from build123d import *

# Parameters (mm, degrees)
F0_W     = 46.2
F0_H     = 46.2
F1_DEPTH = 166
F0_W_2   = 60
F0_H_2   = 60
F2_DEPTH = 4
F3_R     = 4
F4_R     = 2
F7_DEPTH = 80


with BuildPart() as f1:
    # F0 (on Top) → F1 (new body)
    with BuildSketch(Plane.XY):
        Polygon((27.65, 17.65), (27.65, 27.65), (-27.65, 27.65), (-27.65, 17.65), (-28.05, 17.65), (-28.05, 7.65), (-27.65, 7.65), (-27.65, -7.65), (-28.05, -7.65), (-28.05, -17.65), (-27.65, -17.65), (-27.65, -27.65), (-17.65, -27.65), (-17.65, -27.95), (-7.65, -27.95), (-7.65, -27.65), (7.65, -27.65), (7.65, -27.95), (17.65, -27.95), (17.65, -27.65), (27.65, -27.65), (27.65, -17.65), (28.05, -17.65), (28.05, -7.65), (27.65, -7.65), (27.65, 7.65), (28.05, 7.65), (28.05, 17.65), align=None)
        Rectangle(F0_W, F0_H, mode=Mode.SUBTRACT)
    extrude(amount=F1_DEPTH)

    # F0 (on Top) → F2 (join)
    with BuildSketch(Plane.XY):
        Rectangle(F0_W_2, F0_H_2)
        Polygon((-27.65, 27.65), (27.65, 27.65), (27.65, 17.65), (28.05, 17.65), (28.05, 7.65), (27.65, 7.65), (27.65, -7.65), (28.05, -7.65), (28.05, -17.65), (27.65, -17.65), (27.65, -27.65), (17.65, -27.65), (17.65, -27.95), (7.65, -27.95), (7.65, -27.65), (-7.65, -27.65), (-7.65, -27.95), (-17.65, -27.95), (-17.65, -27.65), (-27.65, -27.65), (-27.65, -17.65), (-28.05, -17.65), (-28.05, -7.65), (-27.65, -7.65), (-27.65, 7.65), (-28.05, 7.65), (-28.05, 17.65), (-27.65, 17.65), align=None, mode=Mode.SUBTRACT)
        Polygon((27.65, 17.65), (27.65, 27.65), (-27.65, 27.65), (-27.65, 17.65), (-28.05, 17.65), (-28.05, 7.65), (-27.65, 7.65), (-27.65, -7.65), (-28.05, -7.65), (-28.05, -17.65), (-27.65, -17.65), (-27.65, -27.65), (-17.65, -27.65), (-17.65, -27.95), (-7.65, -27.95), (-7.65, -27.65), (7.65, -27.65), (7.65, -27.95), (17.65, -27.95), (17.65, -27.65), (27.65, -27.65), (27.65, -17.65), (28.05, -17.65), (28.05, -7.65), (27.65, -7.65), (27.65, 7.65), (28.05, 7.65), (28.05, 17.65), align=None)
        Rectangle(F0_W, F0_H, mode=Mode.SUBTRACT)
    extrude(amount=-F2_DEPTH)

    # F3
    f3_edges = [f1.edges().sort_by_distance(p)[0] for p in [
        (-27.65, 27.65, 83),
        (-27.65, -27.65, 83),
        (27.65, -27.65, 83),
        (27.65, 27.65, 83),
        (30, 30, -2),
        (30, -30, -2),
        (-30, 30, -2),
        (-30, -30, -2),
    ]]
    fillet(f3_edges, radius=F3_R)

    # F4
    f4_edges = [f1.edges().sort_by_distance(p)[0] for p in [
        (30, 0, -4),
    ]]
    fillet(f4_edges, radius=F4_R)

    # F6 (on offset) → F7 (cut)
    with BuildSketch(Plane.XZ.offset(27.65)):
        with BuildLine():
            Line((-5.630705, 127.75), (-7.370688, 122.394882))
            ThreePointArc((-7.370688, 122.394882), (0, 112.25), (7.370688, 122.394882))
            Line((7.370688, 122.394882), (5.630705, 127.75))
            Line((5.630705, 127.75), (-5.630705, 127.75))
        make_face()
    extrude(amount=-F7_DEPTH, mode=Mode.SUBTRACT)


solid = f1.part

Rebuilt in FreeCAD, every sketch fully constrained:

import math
import FreeCAD as App
import Part
import Sketcher
from FreeCAD import Vector
Q = App.Units.Quantity


def edges_at(feature, points):
    """Names of the edges that pass closest to the given points."""
    edges = feature.Shape.Edges
    near = lambda p: min(range(len(edges)), key=lambda i: edges[i].distToShape(Part.Vertex(*p))[0])
    return sorted({f"Edge{near(p) + 1}" for p in points})

doc = App.newDocument("Part")
body = doc.addObject("PartDesign::Body", "Body")

sketch1 = doc.addObject("Sketcher::SketchObject", "Sketch")
body.addObject(sketch1)
sketch1.AttachmentSupport = (doc.XY_Plane, [""])
sketch1.MapMode = "FlatFace"
sketch1.addGeometry([
    Part.LineSegment(Vector(27.65, 17.65, 0), Vector(27.65, 27.65, 0)),
    Part.LineSegment(Vector(27.65, 27.65, 0), Vector(-27.65, 27.65, 0)),
    Part.LineSegment(Vector(-27.65, 27.65, 0), Vector(-27.65, 17.65, 0)),
    Part.LineSegment(Vector(-27.65, 17.65, 0), Vector(-28.05, 17.65, 0)),
    Part.LineSegment(Vector(-28.05, 17.65, 0), Vector(-28.05, 7.65, 0)),
    Part.LineSegment(Vector(-28.05, 7.65, 0), Vector(-27.65, 7.65, 0)),
    Part.LineSegment(Vector(-27.65, 7.65, 0), Vector(-27.65, -7.65, 0)),
    Part.LineSegment(Vector(-27.65, -7.65, 0), Vector(-28.05, -7.65, 0)),
    Part.LineSegment(Vector(-28.05, -7.65, 0), Vector(-28.05, -17.65, 0)),
    Part.LineSegment(Vector(-28.05, -17.65, 0), Vector(-27.65, -17.65, 0)),
    Part.LineSegment(Vector(-27.65, -17.65, 0), Vector(-27.65, -27.65, 0)),
    Part.LineSegment(Vector(-27.65, -27.65, 0), Vector(-17.65, -27.65, 0)),
    Part.LineSegment(Vector(-17.65, -27.65, 0), Vector(-17.65, -27.95, 0)),
    Part.LineSegment(Vector(-17.65, -27.95, 0), Vector(-7.65, -27.95, 0)),
    Part.LineSegment(Vector(-7.65, -27.95, 0), Vector(-7.65, -27.65, 0)),
    Part.LineSegment(Vector(-7.65, -27.65, 0), Vector(7.65, -27.65, 0)),
    Part.LineSegment(Vector(7.65, -27.65, 0), Vector(7.65, -27.95, 0)),
    Part.LineSegment(Vector(7.65, -27.95, 0), Vector(17.65, -27.95, 0)),
    Part.LineSegment(Vector(17.65, -27.95, 0), Vector(17.65, -27.65, 0)),
    Part.LineSegment(Vector(17.65, -27.65, 0), Vector(27.65, -27.65, 0)),
    Part.LineSegment(Vector(27.65, -27.65, 0), Vector(27.65, -17.65, 0)),
    Part.LineSegment(Vector(27.65, -17.65, 0), Vector(28.05, -17.65, 0)),
    Part.LineSegment(Vector(28.05, -17.65, 0), Vector(28.05, -7.65, 0)),
    Part.LineSegment(Vector(28.05, -7.65, 0), Vector(27.65, -7.65, 0)),
    Part.LineSegment(Vector(27.65, -7.65, 0), Vector(27.65, 7.65, 0)),
    Part.LineSegment(Vector(27.65, 7.65, 0), Vector(28.05, 7.65, 0)),
    Part.LineSegment(Vector(28.05, 7.65, 0), Vector(28.05, 17.65, 0)),
    Part.LineSegment(Vector(28.05, 17.65, 0), Vector(27.65, 17.65, 0)),
    Part.LineSegment(Vector(23.1, -23.1, 0), Vector(-23.1, -23.1, 0)),
    Part.LineSegment(Vector(-23.1, -23.1, 0), Vector(-23.1, 23.1, 0)),
    Part.LineSegment(Vector(-23.1, 23.1, 0), Vector(23.1, 23.1, 0)),
    Part.LineSegment(Vector(23.1, 23.1, 0), Vector(23.1, -23.1, 0)),
], False)
sketch1.addConstraint([
    Sketcher.Constraint("Coincident", 0, 2, 1, 1),
    Sketcher.Constraint("Coincident", 1, 2, 2, 1),
    Sketcher.Constraint("Coincident", 2, 2, 3, 1),
    Sketcher.Constraint("Coincident", 3, 2, 4, 1),
    Sketcher.Constraint("Coincident", 4, 2, 5, 1),
    Sketcher.Constraint("Coincident", 5, 2, 6, 1),
    Sketcher.Constraint("Coincident", 6, 2, 7, 1),
    Sketcher.Constraint("Coincident", 7, 2, 8, 1),
    Sketcher.Constraint("Coincident", 8, 2, 9, 1),
    Sketcher.Constraint("Coincident", 9, 2, 10, 1),
    Sketcher.Constraint("Coincident", 10, 2, 11, 1),
    Sketcher.Constraint("Coincident", 11, 2, 12, 1),
    Sketcher.Constraint("Coincident", 12, 2, 13, 1),
    Sketcher.Constraint("Coincident", 13, 2, 14, 1),
    Sketcher.Constraint("Coincident", 14, 2, 15, 1),
    Sketcher.Constraint("Coincident", 15, 2, 16, 1),
    Sketcher.Constraint("Coincident", 16, 2, 17, 1),
    Sketcher.Constraint("Coincident", 17, 2, 18, 1),
    Sketcher.Constraint("Coincident", 18, 2, 19, 1),
    Sketcher.Constraint("Coincident", 19, 2, 20, 1),
    Sketcher.Constraint("Coincident", 20, 2, 21, 1),
    Sketcher.Constraint("Coincident", 21, 2, 22, 1),
    Sketcher.Constraint("Coincident", 22, 2, 23, 1),
    Sketcher.Constraint("Coincident", 23, 2, 24, 1),
    Sketcher.Constraint("Coincident", 24, 2, 25, 1),
    Sketcher.Constraint("Coincident", 25, 2, 26, 1),
    Sketcher.Constraint("Coincident", 26, 2, 27, 1),
    Sketcher.Constraint("Coincident", 27, 2, 0, 1),
    Sketcher.Constraint("Coincident", 28, 2, 29, 1),
    Sketcher.Constraint("Coincident", 29, 2, 30, 1),
    Sketcher.Constraint("Coincident", 30, 2, 31, 1),
    Sketcher.Constraint("Coincident", 31, 2, 28, 1),
    Sketcher.Constraint("Vertical", 0),
    Sketcher.Constraint("Horizontal", 1),
    Sketcher.Constraint("Vertical", 2),
    Sketcher.Constraint("Horizontal", 3),
    Sketcher.Constraint("Vertical", 4),
    Sketcher.Constraint("Horizontal", 5),
    Sketcher.Constraint("Vertical", 6),
    Sketcher.Constraint("Horizontal", 7),
    Sketcher.Constraint("Vertical", 8),
    Sketcher.Constraint("Horizontal", 9),
    Sketcher.Constraint("Vertical", 10),
    Sketcher.Constraint("Horizontal", 11),
    Sketcher.Constraint("Vertical", 12),
    Sketcher.Constraint("Horizontal", 13),
    Sketcher.Constraint("Vertical", 14),
    Sketcher.Constraint("Horizontal", 15),
    Sketcher.Constraint("Vertical", 16),
    Sketcher.Constraint("Horizontal", 17),
    Sketcher.Constraint("Vertical", 18),
    Sketcher.Constraint("Horizontal", 19),
    Sketcher.Constraint("Vertical", 20),
    Sketcher.Constraint("Horizontal", 21),
    Sketcher.Constraint("Vertical", 22),
    Sketcher.Constraint("Horizontal", 23),
    Sketcher.Constraint("Vertical", 24),
    Sketcher.Constraint("Horizontal", 25),
    Sketcher.Constraint("Vertical", 26),
    Sketcher.Constraint("Horizontal", 27),
    Sketcher.Constraint("Horizontal", 28),
    Sketcher.Constraint("Vertical", 29),
    Sketcher.Constraint("Horizontal", 30),
    Sketcher.Constraint("Vertical", 31),
    Sketcher.Constraint("Symmetric", 0, 2, 10, 2, -1, 1),
    Sketcher.Constraint("Symmetric", 1, 2, 19, 2, -1, 1),
    Sketcher.Constraint("Symmetric", 3, 2, 21, 2, -1, 1),
    Sketcher.Constraint("Symmetric", 5, 2, 23, 2, -1, 1),
    Sketcher.Constraint("Symmetric", 7, 2, 25, 2, -1, 1),
    Sketcher.Constraint("Symmetric", 28, 2, 30, 2, -1, 1),
    Sketcher.Constraint("Symmetric", 13, 2, 16, 2, -2),
    Sketcher.Constraint("Symmetric", 9, 2, 20, 2, -2),
    Sketcher.Constraint("Symmetric", 7, 2, 22, 2, -2),
    Sketcher.Constraint("Horizontal", 11, 2, 14, 2),
    Sketcher.Constraint("Horizontal", 3, 2, 26, 2),
    Sketcher.Constraint("Vertical", 2, 2, 5, 2),
    Sketcher.Constraint("Equal", 11, 13),
    Sketcher.Constraint("Equal", 13, 17),
    Sketcher.Constraint("Equal", 19, 0),
    Sketcher.Constraint("Equal", 2, 4),
    Sketcher.Constraint("Equal", 15, 6),
    Sketcher.Constraint("Equal", 30, 29),
    Sketcher.Constraint("DistanceX", 11, 1, 11, 2, Q("10 mm")),
    Sketcher.Constraint("DistanceX", 1, 2, 1, 1, Q("55.3 mm")),
    Sketcher.Constraint("DistanceX", 3, 2, 3, 1, Q("0.4 mm")),
    Sketcher.Constraint("DistanceX", 28, 2, 28, 1, Q("46.2 mm")),
    Sketcher.Constraint("DistanceY", 12, 2, 12, 1, Q("0.3 mm")),
])
pad1 = doc.addObject("PartDesign::Pad", "Pad")
body.addObject(pad1)
pad1.Profile = sketch1
pad1.Length = 166

sketch2 = doc.addObject("Sketcher::SketchObject", "Sketch001")
body.addObject(sketch2)
sketch2.AttachmentSupport = (doc.XY_Plane, [""])
sketch2.MapMode = "FlatFace"
sketch2.addGeometry([
    Part.LineSegment(Vector(-30, 30, 0), Vector(-30, -30, 0)),
    Part.LineSegment(Vector(-30, -30, 0), Vector(30, -30, 0)),
    Part.LineSegment(Vector(30, -30, 0), Vector(30, 30, 0)),
    Part.LineSegment(Vector(30, 30, 0), Vector(-30, 30, 0)),
    Part.LineSegment(Vector(23, -23, 0), Vector(-23, -23, 0)),
    Part.LineSegment(Vector(-23, -23, 0), Vector(-23, 23, 0)),
    Part.LineSegment(Vector(-23, 23, 0), Vector(23, 23, 0)),
    Part.LineSegment(Vector(23, 23, 0), Vector(23, -23, 0)),
], False)
sketch2.addConstraint([
    Sketcher.Constraint("Coincident", 0, 2, 1, 1),
    Sketcher.Constraint("Coincident", 1, 2, 2, 1),
    Sketcher.Constraint("Coincident", 2, 2, 3, 1),
    Sketcher.Constraint("Coincident", 3, 2, 0, 1),
    Sketcher.Constraint("Coincident", 4, 2, 5, 1),
    Sketcher.Constraint("Coincident", 5, 2, 6, 1),
    Sketcher.Constraint("Coincident", 6, 2, 7, 1),
    Sketcher.Constraint("Coincident", 7, 2, 4, 1),
    Sketcher.Constraint("Vertical", 0),
    Sketcher.Constraint("Horizontal", 1),
    Sketcher.Constraint("Vertical", 2),
    Sketcher.Constraint("Horizontal", 3),
    Sketcher.Constraint("Horizontal", 4),
    Sketcher.Constraint("Vertical", 5),
    Sketcher.Constraint("Horizontal", 6),
    Sketcher.Constraint("Vertical", 7),
    Sketcher.Constraint("Symmetric", 0, 2, 2, 2, -1, 1),
    Sketcher.Constraint("Symmetric", 4, 2, 6, 2, -1, 1),
    Sketcher.Constraint("Equal", 3, 0),
    Sketcher.Constraint("Equal", 6, 5),
    Sketcher.Constraint("DistanceX", 1, 1, 1, 2, Q("60 mm")),
    Sketcher.Constraint("DistanceX", 4, 2, 4, 1, Q("46.2 mm")),
])
pad2 = doc.addObject("PartDesign::Pad", "Pad001")
body.addObject(pad2)
pad2.Profile = sketch2
pad2.Length = 4
pad2.Reversed = True
doc.recompute()

fillet = doc.addObject("PartDesign::Fillet", "Fillet")
body.addObject(fillet)
fillet.Base = (pad2, edges_at(pad2, [
    (-27.65, 27.65, 83),
    (-27.65, -27.65, 83),
    (27.65, -27.65, 83),
    (27.65, 27.65, 83),
    (30, 30, -2),
    (30, -30, -2),
    (-30, 30, -2),
    (-30, -30, -2),
]))
fillet.Radius = 4
doc.recompute()

fillet2 = doc.addObject("PartDesign::Fillet", "Fillet001")
body.addObject(fillet2)
fillet2.Base = (fillet, edges_at(fillet, [(30, 0, -4)]))
fillet2.Radius = 2

sketch3 = doc.addObject("Sketcher::SketchObject", "Sketch002")
body.addObject(sketch3)
sketch3.AttachmentSupport = (doc.XZ_Plane, [""])
sketch3.MapMode = "FlatFace"
sketch3.AttachmentOffset = App.Placement(Vector(0, 0, 27.65), App.Rotation())
sketch3.addGeometry([
    Part.LineSegment(Vector(-6, 128, 0), Vector(-7, 122, 0)),
    Part.ArcOfCircle(Part.Circle(Vector(0, 120, 0), Vector(0, 0, 1), 8), math.radians(162), math.radians(378)),
    Part.LineSegment(Vector(7, 122, 0), Vector(6, 128, 0)),
    Part.LineSegment(Vector(6, 128, 0), Vector(-6, 128, 0)),
], False)
sketch3.addConstraint([
    Sketcher.Constraint("Tangent", 0, 2, 1, 1),
    Sketcher.Constraint("Tangent", 1, 2, 2, 1),
    Sketcher.Constraint("Coincident", 2, 2, 3, 1),
    Sketcher.Constraint("Coincident", 3, 2, 0, 1),
    Sketcher.Constraint("Horizontal", 3),
    Sketcher.Constraint("Symmetric", 0, 2, 1, 2, -2),
    Sketcher.Constraint("Angle", 0, Q("-107.999997 deg")),
    Sketcher.Constraint("Radius", 1, Q("7.75 mm")),
    Sketcher.Constraint("DistanceY", -1, 1, 1, 3, Q("120 mm")),
    Sketcher.Constraint("DistanceY", -1, 1, 2, 2, Q("127.75 mm")),
])
pocket1 = doc.addObject("PartDesign::Pocket", "Pocket")
body.addObject(pocket1)
pocket1.Profile = sketch3
pocket1.Length = 80

doc.recompute()
